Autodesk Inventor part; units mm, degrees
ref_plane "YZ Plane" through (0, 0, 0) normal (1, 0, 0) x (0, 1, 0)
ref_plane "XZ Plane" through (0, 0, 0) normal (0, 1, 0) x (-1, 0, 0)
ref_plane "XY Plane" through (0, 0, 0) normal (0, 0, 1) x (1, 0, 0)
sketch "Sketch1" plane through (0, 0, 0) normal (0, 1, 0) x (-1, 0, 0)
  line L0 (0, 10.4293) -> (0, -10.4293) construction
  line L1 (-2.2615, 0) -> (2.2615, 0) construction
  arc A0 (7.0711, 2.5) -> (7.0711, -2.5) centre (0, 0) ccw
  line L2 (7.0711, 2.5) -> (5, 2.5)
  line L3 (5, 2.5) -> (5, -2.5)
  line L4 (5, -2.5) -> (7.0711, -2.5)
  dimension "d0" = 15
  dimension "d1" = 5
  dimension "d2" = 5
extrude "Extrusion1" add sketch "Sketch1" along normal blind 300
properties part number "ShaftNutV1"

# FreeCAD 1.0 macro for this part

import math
import FreeCAD as App
import Part
import Sketcher
from FreeCAD import Vector
Q = App.Units.Quantity

doc = App.newDocument("Part")
params = doc.addObject("Spreadsheet::Sheet", "Params")
for row, (alias, value) in enumerate([
    ("sketch1_radius", "7.5 mm"),
    ("sketch1_height", "5 mm"),
    ("pad1_length", "300 mm"),
], start=1):
    params.set(f"A{row}", alias)
    params.set(f"B{row}", "=" + value)
    params.setAlias(f"B{row}", alias)

body = doc.addObject("PartDesign::Body", "Body")

sketch1 = body.newObject("Sketcher::SketchObject", "Sketch")
sketch1.AttachmentSupport = (doc.getObject("XZ_Plane"), [""])
sketch1.MapMode = "FlatFace"
sketch1.addGeometry(Part.LineSegment(Vector(-5, 2.5, 0), Vector(-7.0711, 2.5, 0)), False)
sketch1.addGeometry(Part.ArcOfCircle(Part.Circle(Vector(0, 0, 0), Vector(0, 0, 1), 7.50003), math.radians(-160.528861), math.radians(160.528861)), False)
sketch1.addGeometry(Part.LineSegment(Vector(-7.0711, -2.5, 0), Vector(-5, -2.5, 0)), False)
sketch1.addGeometry(Part.LineSegment(Vector(-5, -2.5, 0), Vector(-5, 2.5, 0)), False)
sketch1.addConstraint(Sketcher.Constraint("Coincident", 0, 2, 1, 2))
sketch1.addConstraint(Sketcher.Constraint("Coincident", 1, 1, 2, 1))
sketch1.addConstraint(Sketcher.Constraint("Coincident", 2, 2, 3, 1))
sketch1.addConstraint(Sketcher.Constraint("Coincident", 3, 2, 0, 1))
sketch1.addConstraint(Sketcher.Constraint("Horizontal", 0))
sketch1.addConstraint(Sketcher.Constraint("Horizontal", 2))
sketch1.addConstraint(Sketcher.Constraint("Vertical", 3))
sketch1.addConstraint(Sketcher.Constraint("Coincident", 1, 3, -1, 1))
sketch1.addConstraint(Sketcher.Constraint("Vertical", 0, 2, 1, 1))
sketch1.addConstraint(Sketcher.Constraint("Radius", 1, Q("7.5 mm")))
sketch1.addConstraint(Sketcher.Constraint("DistanceY", 3, 1, 3, 2, Q("5 mm")))
sketch1.addConstraint(Sketcher.Constraint("DistanceX", 2, 2, -1, 1, Q("5 mm")))
sketch1.setExpression("Constraints[9]", "Params.sketch1_radius")
sketch1.setExpression("Constraints[10]", "Params.sketch1_height")
pad1 = body.newObject("PartDesign::Pad", "Pad")
pad1.Profile = sketch1
pad1.setExpression("Length", "Params.pad1_length")
pad1.Reversed = True

doc.recompute()
